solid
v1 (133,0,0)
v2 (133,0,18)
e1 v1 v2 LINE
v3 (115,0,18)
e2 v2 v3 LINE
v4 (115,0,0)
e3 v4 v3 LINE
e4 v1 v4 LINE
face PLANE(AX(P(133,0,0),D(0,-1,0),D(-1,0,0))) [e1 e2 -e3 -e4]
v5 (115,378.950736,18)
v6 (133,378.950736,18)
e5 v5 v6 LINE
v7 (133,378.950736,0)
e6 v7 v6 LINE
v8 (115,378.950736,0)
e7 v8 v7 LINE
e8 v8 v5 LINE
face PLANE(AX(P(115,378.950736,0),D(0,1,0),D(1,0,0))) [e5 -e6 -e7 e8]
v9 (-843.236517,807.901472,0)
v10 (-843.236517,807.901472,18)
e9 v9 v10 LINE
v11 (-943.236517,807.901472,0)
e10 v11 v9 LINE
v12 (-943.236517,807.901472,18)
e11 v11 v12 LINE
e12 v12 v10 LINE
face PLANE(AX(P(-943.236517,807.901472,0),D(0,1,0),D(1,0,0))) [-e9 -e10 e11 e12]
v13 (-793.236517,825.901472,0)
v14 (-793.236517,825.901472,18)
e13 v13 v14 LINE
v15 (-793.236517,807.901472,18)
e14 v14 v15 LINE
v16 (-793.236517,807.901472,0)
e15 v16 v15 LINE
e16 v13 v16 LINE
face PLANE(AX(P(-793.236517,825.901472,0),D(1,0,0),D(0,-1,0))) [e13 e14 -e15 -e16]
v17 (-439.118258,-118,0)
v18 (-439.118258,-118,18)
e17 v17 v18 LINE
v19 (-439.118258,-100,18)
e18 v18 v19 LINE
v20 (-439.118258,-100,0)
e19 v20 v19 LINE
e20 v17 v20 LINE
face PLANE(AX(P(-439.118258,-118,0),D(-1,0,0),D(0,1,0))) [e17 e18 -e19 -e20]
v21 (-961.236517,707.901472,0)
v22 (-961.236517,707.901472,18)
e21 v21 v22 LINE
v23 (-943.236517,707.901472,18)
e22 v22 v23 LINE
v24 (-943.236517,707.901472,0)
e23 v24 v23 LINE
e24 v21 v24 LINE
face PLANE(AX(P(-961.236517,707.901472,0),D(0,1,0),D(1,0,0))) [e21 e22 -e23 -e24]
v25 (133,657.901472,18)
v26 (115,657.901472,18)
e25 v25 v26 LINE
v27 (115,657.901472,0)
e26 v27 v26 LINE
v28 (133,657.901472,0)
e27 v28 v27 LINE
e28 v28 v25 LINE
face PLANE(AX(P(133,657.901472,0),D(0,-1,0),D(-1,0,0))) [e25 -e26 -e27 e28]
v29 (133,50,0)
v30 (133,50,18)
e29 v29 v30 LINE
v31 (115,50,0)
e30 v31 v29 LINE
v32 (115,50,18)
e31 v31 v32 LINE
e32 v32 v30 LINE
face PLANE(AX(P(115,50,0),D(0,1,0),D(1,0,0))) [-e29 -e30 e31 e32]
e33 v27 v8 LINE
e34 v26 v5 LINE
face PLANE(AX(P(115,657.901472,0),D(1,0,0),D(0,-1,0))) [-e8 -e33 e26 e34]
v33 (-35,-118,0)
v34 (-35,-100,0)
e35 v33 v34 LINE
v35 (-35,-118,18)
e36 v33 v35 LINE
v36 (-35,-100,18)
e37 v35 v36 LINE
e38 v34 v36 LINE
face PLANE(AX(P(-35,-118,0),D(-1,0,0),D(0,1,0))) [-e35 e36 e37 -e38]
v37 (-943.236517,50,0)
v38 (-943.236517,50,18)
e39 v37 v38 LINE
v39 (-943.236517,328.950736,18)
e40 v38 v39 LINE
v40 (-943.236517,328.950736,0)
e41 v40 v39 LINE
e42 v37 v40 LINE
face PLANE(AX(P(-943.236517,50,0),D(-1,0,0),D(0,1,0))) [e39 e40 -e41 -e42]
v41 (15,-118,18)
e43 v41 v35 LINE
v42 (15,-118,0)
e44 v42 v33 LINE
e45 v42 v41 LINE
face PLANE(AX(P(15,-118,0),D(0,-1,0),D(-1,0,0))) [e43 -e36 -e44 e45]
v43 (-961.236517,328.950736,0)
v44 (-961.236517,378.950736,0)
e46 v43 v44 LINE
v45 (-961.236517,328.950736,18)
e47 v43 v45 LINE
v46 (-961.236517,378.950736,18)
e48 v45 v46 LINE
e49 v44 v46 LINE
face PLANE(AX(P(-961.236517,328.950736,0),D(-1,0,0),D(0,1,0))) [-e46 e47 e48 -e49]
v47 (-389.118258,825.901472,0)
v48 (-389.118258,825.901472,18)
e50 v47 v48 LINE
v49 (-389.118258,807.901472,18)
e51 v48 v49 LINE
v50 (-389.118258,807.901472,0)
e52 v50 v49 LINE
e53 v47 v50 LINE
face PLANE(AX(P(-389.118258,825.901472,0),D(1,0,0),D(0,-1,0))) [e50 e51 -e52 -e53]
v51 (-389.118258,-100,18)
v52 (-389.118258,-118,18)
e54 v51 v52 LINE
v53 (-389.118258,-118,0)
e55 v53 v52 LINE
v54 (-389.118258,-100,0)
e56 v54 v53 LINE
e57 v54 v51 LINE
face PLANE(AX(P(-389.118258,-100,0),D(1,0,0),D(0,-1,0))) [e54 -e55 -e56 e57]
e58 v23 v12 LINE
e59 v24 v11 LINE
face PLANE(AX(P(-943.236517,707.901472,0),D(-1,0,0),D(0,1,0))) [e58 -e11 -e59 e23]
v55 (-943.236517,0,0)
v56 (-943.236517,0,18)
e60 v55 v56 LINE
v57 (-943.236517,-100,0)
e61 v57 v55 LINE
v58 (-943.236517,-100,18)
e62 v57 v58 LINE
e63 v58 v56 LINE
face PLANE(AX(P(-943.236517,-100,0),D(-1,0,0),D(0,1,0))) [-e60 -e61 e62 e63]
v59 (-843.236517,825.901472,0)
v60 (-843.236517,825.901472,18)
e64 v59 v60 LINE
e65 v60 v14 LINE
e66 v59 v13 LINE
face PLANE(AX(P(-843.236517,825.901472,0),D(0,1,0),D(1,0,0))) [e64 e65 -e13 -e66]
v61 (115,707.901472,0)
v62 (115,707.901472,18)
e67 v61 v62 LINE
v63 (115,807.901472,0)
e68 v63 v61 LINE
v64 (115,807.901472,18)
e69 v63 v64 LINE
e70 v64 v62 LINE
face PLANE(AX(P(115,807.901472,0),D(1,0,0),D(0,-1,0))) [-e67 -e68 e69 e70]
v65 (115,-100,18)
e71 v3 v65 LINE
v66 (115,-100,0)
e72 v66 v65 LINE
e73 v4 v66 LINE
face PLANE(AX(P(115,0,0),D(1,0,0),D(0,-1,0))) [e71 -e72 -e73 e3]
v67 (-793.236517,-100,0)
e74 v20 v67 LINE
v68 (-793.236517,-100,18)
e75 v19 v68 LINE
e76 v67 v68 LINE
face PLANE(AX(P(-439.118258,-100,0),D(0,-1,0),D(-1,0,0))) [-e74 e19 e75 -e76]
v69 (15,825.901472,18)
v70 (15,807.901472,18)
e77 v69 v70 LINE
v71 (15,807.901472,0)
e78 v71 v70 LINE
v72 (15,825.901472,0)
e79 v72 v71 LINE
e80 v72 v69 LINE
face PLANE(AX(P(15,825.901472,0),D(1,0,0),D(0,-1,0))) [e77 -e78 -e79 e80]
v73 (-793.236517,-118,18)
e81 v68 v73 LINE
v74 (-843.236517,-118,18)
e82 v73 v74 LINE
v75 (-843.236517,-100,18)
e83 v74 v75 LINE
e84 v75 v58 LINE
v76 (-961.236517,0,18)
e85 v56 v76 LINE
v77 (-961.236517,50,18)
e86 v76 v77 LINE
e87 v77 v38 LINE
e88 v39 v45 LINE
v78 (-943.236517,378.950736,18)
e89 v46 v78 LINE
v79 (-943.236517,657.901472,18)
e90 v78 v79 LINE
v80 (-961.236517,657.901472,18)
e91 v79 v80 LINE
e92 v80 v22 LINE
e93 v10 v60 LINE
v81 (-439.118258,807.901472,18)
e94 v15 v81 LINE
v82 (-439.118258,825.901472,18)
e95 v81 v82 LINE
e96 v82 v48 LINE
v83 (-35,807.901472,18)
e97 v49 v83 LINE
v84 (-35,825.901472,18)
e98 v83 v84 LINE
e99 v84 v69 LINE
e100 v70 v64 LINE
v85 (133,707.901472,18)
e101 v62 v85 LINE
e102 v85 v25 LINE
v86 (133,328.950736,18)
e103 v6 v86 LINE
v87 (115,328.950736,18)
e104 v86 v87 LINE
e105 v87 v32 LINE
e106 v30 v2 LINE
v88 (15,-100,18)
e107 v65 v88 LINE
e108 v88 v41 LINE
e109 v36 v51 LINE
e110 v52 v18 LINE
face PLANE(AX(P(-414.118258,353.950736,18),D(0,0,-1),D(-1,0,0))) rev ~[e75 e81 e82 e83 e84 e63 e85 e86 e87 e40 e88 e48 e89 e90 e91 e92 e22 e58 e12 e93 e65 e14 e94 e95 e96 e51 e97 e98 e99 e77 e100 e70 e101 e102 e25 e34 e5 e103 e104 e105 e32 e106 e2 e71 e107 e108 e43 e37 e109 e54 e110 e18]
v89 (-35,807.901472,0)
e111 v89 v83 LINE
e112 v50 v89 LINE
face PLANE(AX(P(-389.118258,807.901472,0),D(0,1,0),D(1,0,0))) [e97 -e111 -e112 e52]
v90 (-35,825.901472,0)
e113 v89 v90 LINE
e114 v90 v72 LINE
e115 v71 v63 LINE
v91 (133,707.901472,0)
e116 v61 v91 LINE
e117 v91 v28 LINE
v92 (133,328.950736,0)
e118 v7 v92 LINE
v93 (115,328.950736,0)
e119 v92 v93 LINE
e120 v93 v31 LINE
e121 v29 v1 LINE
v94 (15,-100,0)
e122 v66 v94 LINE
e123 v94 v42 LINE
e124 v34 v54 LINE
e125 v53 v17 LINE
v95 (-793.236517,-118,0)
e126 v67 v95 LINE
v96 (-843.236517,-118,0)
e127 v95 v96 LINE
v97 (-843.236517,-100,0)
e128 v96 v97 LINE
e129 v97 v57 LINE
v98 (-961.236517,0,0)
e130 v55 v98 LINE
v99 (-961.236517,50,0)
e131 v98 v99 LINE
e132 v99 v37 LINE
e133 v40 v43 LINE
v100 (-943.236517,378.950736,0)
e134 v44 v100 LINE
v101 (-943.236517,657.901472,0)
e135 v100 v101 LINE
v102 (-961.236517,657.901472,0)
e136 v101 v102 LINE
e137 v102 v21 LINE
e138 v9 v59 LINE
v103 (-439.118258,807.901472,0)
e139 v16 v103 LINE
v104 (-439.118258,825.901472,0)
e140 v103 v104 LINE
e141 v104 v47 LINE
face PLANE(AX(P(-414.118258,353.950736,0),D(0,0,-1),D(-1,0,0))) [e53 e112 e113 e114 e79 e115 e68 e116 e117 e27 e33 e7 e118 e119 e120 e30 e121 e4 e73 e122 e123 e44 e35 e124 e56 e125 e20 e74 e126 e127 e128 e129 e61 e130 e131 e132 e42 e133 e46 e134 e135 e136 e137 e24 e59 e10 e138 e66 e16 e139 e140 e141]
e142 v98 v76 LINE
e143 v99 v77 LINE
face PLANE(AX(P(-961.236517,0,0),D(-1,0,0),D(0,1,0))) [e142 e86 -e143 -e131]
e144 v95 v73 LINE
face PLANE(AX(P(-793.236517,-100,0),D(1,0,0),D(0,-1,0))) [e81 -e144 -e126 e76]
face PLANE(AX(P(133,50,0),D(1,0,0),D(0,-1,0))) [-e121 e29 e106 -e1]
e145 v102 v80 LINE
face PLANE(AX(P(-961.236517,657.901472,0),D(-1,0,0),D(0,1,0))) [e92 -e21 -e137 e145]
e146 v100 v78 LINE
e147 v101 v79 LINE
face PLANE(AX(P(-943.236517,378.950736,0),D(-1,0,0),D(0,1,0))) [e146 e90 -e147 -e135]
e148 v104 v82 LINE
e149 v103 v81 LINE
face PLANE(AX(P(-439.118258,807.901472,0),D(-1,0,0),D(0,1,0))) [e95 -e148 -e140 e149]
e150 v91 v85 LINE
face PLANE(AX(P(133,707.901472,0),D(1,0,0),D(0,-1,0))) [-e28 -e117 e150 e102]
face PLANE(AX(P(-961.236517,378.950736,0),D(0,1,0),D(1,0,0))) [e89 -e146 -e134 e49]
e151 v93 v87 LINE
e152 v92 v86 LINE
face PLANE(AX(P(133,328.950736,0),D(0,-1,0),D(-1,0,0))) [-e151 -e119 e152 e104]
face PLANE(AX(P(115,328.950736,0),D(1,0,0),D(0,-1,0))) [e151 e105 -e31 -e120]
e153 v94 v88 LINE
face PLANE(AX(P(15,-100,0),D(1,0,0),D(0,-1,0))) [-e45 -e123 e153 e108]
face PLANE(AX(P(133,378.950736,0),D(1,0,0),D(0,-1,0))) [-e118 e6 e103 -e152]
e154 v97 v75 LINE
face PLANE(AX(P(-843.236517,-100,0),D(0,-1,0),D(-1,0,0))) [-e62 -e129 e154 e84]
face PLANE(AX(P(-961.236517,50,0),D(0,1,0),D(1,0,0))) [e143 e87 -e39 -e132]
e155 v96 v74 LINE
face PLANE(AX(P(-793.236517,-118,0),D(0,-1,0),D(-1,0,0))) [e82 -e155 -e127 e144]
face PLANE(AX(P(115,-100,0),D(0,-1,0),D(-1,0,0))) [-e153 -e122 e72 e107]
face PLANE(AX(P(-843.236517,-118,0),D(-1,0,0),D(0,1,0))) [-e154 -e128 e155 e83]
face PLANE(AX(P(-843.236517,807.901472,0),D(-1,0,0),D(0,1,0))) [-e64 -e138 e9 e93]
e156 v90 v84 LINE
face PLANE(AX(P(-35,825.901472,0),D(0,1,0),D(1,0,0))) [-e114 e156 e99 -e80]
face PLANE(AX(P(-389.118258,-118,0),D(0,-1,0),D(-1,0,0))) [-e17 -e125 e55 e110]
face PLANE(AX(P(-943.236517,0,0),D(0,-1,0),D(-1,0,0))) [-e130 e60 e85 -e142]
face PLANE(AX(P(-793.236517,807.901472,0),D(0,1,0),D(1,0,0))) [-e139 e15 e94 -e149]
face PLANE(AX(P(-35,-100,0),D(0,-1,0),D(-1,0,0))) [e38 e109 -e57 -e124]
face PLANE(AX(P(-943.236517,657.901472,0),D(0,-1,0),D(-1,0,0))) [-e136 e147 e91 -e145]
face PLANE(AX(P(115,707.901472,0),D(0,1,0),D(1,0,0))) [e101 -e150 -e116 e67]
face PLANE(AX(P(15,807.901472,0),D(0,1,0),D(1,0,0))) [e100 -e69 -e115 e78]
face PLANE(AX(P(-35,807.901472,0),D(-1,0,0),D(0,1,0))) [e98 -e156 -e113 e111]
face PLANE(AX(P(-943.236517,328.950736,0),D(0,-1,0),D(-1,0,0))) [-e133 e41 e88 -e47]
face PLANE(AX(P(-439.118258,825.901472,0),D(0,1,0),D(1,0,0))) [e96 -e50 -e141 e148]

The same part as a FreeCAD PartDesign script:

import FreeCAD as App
import Part
import Sketcher
from FreeCAD import Vector
Q = App.Units.Quantity

doc = App.newDocument("Part")
body = doc.addObject("PartDesign::Body", "Body")

sketch1 = body.newObject("Sketcher::SketchObject", "Sketch")
sketch1.AttachmentSupport = (doc.getObject("XY_Plane"), [""])
sketch1.MapMode = "FlatFace"
sketch1.addGeometry([
    Part.LineSegment(Vector(-961.236517, 378.950736, 0), Vector(-961.236517, 328.950736, 0)),
    Part.LineSegment(Vector(-961.236517, 328.950736, 0), Vector(-943.236517, 328.950736, 0)),
    Part.LineSegment(Vector(-943.236517, 328.950736, 0), Vector(-943.236517, 50, 0)),
    Part.LineSegment(Vector(-943.236517, 50, 0), Vector(-961.236517, 50, 0)),
    Part.LineSegment(Vector(-961.236517, 50, 0), Vector(-961.236517, 0, 0)),
    Part.LineSegment(Vector(-961.236517, 0, 0), Vector(-943.236517, 0, 0)),
    Part.LineSegment(Vector(-943.236517, 0, 0), Vector(-943.236517, -100, 0)),
    Part.LineSegment(Vector(-943.236517, -100, 0), Vector(-843.236517, -100, 0)),
    Part.LineSegment(Vector(-843.236517, -100, 0), Vector(-843.236517, -118, 0)),
    Part.LineSegment(Vector(-843.236517, -118, 0), Vector(-793.236517, -118, 0)),
    Part.LineSegment(Vector(-793.236517, -118, 0), Vector(-793.236517, -100, 0)),
    Part.LineSegment(Vector(-793.236517, -100, 0), Vector(-439.118258, -100, 0)),
    Part.LineSegment(Vector(-439.118258, -100, 0), Vector(-439.118258, -118, 0)),
    Part.LineSegment(Vector(-439.118258, -118, 0), Vector(-389.118258, -118, 0)),
    Part.LineSegment(Vector(-389.118258, -118, 0), Vector(-389.118258, -100, 0)),
    Part.LineSegment(Vector(-389.118258, -100, 0), Vector(-35, -100, 0)),
    Part.LineSegment(Vector(-35, -100, 0), Vector(-35, -118, 0)),
    Part.LineSegment(Vector(-35, -118, 0), Vector(15, -118, 0)),
    Part.LineSegment(Vector(15, -118, 0), Vector(15, -100, 0)),
    Part.LineSegment(Vector(15, -100, 0), Vector(115, -100, 0)),
    Part.LineSegment(Vector(115, -100, 0), Vector(115, 0, 0)),
    Part.LineSegment(Vector(115, 0, 0), Vector(133, 0, 0)),
    Part.LineSegment(Vector(133, 0, 0), Vector(133, 50, 0)),
    Part.LineSegment(Vector(133, 50, 0), Vector(115, 50, 0)),
    Part.LineSegment(Vector(115, 50, 0), Vector(115, 328.950736, 0)),
    Part.LineSegment(Vector(115, 328.950736, 0), Vector(133, 328.950736, 0)),
    Part.LineSegment(Vector(133, 328.950736, 0), Vector(133, 378.950736, 0)),
    Part.LineSegment(Vector(133, 378.950736, 0), Vector(115, 378.950736, 0)),
    Part.LineSegment(Vector(115, 378.950736, 0), Vector(115, 657.901472, 0)),
    Part.LineSegment(Vector(115, 657.901472, 0), Vector(133, 657.901472, 0)),
    Part.LineSegment(Vector(133, 657.901472, 0), Vector(133, 707.901472, 0)),
    Part.LineSegment(Vector(133, 707.901472, 0), Vector(115, 707.901472, 0)),
    Part.LineSegment(Vector(115, 707.901472, 0), Vector(115, 807.901472, 0)),
    Part.LineSegment(Vector(115, 807.901472, 0), Vector(15, 807.901472, 0)),
    Part.LineSegment(Vector(15, 807.901472, 0), Vector(15, 825.901472, 0)),
    Part.LineSegment(Vector(15, 825.901472, 0), Vector(-35, 825.901472, 0)),
    Part.LineSegment(Vector(-35, 825.901472, 0), Vector(-35, 807.901472, 0)),
    Part.LineSegment(Vector(-35, 807.901472, 0), Vector(-389.118258, 807.901472, 0)),
    Part.LineSegment(Vector(-389.118258, 807.901472, 0), Vector(-389.118258, 825.901472, 0)),
    Part.LineSegment(Vector(-389.118258, 825.901472, 0), Vector(-439.118258, 825.901472, 0)),
    Part.LineSegment(Vector(-439.118258, 825.901472, 0), Vector(-439.118258, 807.901472, 0)),
    Part.LineSegment(Vector(-439.118258, 807.901472, 0), Vector(-793.236517, 807.901472, 0)),
    Part.LineSegment(Vector(-793.236517, 807.901472, 0), Vector(-793.236517, 825.901472, 0)),
    Part.LineSegment(Vector(-793.236517, 825.901472, 0), Vector(-843.236517, 825.901472, 0)),
    Part.LineSegment(Vector(-843.236517, 825.901472, 0), Vector(-843.236517, 807.901472, 0)),
    Part.LineSegment(Vector(-843.236517, 807.901472, 0), Vector(-943.236517, 807.901472, 0)),
    Part.LineSegment(Vector(-943.236517, 807.901472, 0), Vector(-943.236517, 707.901472, 0)),
    Part.LineSegment(Vector(-943.236517, 707.901472, 0), Vector(-961.236517, 707.901472, 0)),
    Part.LineSegment(Vector(-961.236517, 707.901472, 0), Vector(-961.236517, 657.901472, 0)),
    Part.LineSegment(Vector(-961.236517, 657.901472, 0), Vector(-943.236517, 657.901472, 0)),
    Part.LineSegment(Vector(-943.236517, 657.901472, 0), Vector(-943.236517, 378.950736, 0)),
    Part.LineSegment(Vector(-943.236517, 378.950736, 0), Vector(-961.236517, 378.950736, 0)),
], False)
sketch1.addConstraint([
    Sketcher.Constraint("Coincident", 0, 2, 1, 1),
    Sketcher.Constraint("Coincident", 1, 2, 2, 1),
    Sketcher.Constraint("Coincident", 2, 2, 3, 1),
    Sketcher.Constraint("Coincident", 3, 2, 4, 1),
    Sketcher.Constraint("Coincident", 4, 2, 5, 1),
    Sketcher.Constraint("Coincident", 5, 2, 6, 1),
    Sketcher.Constraint("Coincident", 6, 2, 7, 1),
    Sketcher.Constraint("Coincident", 7, 2, 8, 1),
    Sketcher.Constraint("Coincident", 8, 2, 9, 1),
    Sketcher.Constraint("Coincident", 9, 2, 10, 1),
    Sketcher.Constraint("Coincident", 10, 2, 11, 1),
    Sketcher.Constraint("Coincident", 11, 2, 12, 1),
    Sketcher.Constraint("Coincident", 12, 2, 13, 1),
    Sketcher.Constraint("Coincident", 13, 2, 14, 1),
    Sketcher.Constraint("Coincident", 14, 2, 15, 1),
    Sketcher.Constraint("Coincident", 15, 2, 16, 1),
    Sketcher.Constraint("Coincident", 16, 2, 17, 1),
    Sketcher.Constraint("Coincident", 17, 2, 18, 1),
    Sketcher.Constraint("Coincident", 18, 2, 19, 1),
    Sketcher.Constraint("Coincident", 19, 2, 20, 1),
    Sketcher.Constraint("Coincident", 20, 2, 21, 1),
    Sketcher.Constraint("Coincident", 21, 2, 22, 1),
    Sketcher.Constraint("Coincident", 22, 2, 23, 1),
    Sketcher.Constraint("Coincident", 23, 2, 24, 1),
    Sketcher.Constraint("Coincident", 24, 2, 25, 1),
    Sketcher.Constraint("Coincident", 25, 2, 26, 1),
    Sketcher.Constraint("Coincident", 26, 2, 27, 1),
    Sketcher.Constraint("Coincident", 27, 2, 28, 1),
    Sketcher.Constraint("Coincident", 28, 2, 29, 1),
    Sketcher.Constraint("Coincident", 29, 2, 30, 1),
    Sketcher.Constraint("Coincident", 30, 2, 31, 1),
    Sketcher.Constraint("Coincident", 31, 2, 32, 1),
    Sketcher.Constraint("Coincident", 32, 2, 33, 1),
    Sketcher.Constraint("Coincident", 33, 2, 34, 1),
    Sketcher.Constraint("Coincident", 34, 2, 35, 1),
    Sketcher.Constraint("Coincident", 35, 2, 36, 1),
    Sketcher.Constraint("Coincident", 36, 2, 37, 1),
    Sketcher.Constraint("Coincident", 37, 2, 38, 1),
    Sketcher.Constraint("Coincident", 38, 2, 39, 1),
    Sketcher.Constraint("Coincident", 39, 2, 40, 1),
    Sketcher.Constraint("Coincident", 40, 2, 41, 1),
    Sketcher.Constraint("Coincident", 41, 2, 42, 1),
    Sketcher.Constraint("Coincident", 42, 2, 43, 1),
    Sketcher.Constraint("Coincident", 43, 2, 44, 1),
    Sketcher.Constraint("Coincident", 44, 2, 45, 1),
    Sketcher.Constraint("Coincident", 45, 2, 46, 1),
    Sketcher.Constraint("Coincident", 46, 2, 47, 1),
    Sketcher.Constraint("Coincident", 47, 2, 48, 1),
    Sketcher.Constraint("Coincident", 48, 2, 49, 1),
    Sketcher.Constraint("Coincident", 49, 2, 50, 1),
    Sketcher.Constraint("Coincident", 50, 2, 51, 1),
    Sketcher.Constraint("Coincident", 51, 2, 0, 1),
    Sketcher.Constraint("Vertical", 0),
    Sketcher.Constraint("Horizontal", 1),
    Sketcher.Constraint("Vertical", 2),
    Sketcher.Constraint("Horizontal", 3),
    Sketcher.Constraint("Vertical", 4),
    Sketcher.Constraint("Horizontal", 5),
    Sketcher.Constraint("Vertical", 6),
    Sketcher.Constraint("Horizontal", 7),
    Sketcher.Constraint("Vertical", 8),
    Sketcher.Constraint("Horizontal", 9),
    Sketcher.Constraint("Vertical", 10),
    Sketcher.Constraint("Horizontal", 11),
    Sketcher.Constraint("Vertical", 12),
    Sketcher.Constraint("Horizontal", 13),
    Sketcher.Constraint("Vertical", 14),
    Sketcher.Constraint("Horizontal", 15),
    Sketcher.Constraint("Vertical", 16),
    Sketcher.Constraint("Horizontal", 17),
    Sketcher.Constraint("Vertical", 18),
    Sketcher.Constraint("Horizontal", 19),
    Sketcher.Constraint("Vertical", 20),
    Sketcher.Constraint("Horizontal", 21),
    Sketcher.Constraint("Vertical", 22),
    Sketcher.Constraint("Horizontal", 23),
    Sketcher.Constraint("Vertical", 24),
    Sketcher.Constraint("Horizontal", 25),
    Sketcher.Constraint("Vertical", 26),
    Sketcher.Constraint("Horizontal", 27),
    Sketcher.Constraint("Vertical", 28),
    Sketcher.Constraint("Horizontal", 29),
    Sketcher.Constraint("Vertical", 30),
    Sketcher.Constraint("Horizontal", 31),
    Sketcher.Constraint("Vertical", 32),
    Sketcher.Constraint("Horizontal", 33),
    Sketcher.Constraint("Vertical", 34),
    Sketcher.Constraint("Horizontal", 35),
    Sketcher.Constraint("Vertical", 36),
    Sketcher.Constraint("Horizontal", 37),
    Sketcher.Constraint("Vertical", 38),
    Sketcher.Constraint("Horizontal", 39),
    Sketcher.Constraint("Vertical", 40),
    Sketcher.Constraint("Horizontal", 41),
    Sketcher.Constraint("Vertical", 42),
    Sketcher.Constraint("Horizontal", 43),
    Sketcher.Constraint("Vertical", 44),
    Sketcher.Constraint("Horizontal", 45),
    Sketcher.Constraint("Vertical", 46),
    Sketcher.Constraint("Horizontal", 47),
    Sketcher.Constraint("Vertical", 48),
    Sketcher.Constraint("Horizontal", 49),
    Sketcher.Constraint("Vertical", 50),
    Sketcher.Constraint("Horizontal", 51),
    Sketcher.Constraint("PointOnObject", 4, 2, -1),
    Sketcher.Constraint("PointOnObject", 20, 2, -1),
    Sketcher.Constraint("Horizontal", 7, 2, 10, 2),
    Sketcher.Constraint("Horizontal", 9, 2, 12, 2),
    Sketcher.Constraint("Horizontal", 11, 2, 14, 2),
    Sketcher.Constraint("Horizontal", 13, 2, 16, 2),
    Sketcher.Constraint("Horizontal", 15, 2, 18, 2),
    Sketcher.Constraint("Horizontal", 3, 2, 22, 2),
    Sketcher.Constraint("Horizontal", 1, 2, 24, 2),
    Sketcher.Constraint("Horizontal", 33, 2, 36, 2),
    Sketcher.Constraint("Horizontal", 35, 2, 38, 2),
    Sketcher.Constraint("Horizontal", 37, 2, 40, 2),
    Sketcher.Constraint("Horizontal", 39, 2, 42, 2),
    Sketcher.Constraint("Horizontal", 41, 2, 44, 2),
    Sketcher.Constraint("Horizontal", 31, 2, 46, 2),
    Sketcher.Constraint("Horizontal", 29, 2, 48, 2),
    Sketcher.Constraint("Horizontal", 27, 2, 50, 2),
    Sketcher.Constraint("Vertical", 0, 2, 3, 2),
    Sketcher.Constraint("Vertical", 2, 2, 5, 2),
    Sketcher.Constraint("Vertical", 20, 2, 23, 2),
    Sketcher.Constraint("Vertical", 22, 2, 25, 2),
    Sketcher.Constraint("Vertical", 24, 2, 27, 2),
    Sketcher.Constraint("Vertical", 26, 2, 29, 2),
    Sketcher.Constraint("Vertical", 28, 2, 31, 2),
    Sketcher.Constraint("Vertical", 18, 2, 33, 2),
    Sketcher.Constraint("Vertical", 16, 2, 35, 2),
    Sketcher.Constraint("Vertical", 14, 2, 37, 2),
    Sketcher.Constraint("Vertical", 12, 2, 39, 2),
    Sketcher.Constraint("Vertical", 10, 2, 41, 2),
    Sketcher.Constraint("Vertical", 8, 2, 43, 2),
    Sketcher.Constraint("Vertical", 6, 2, 45, 2),
    Sketcher.Constraint("Vertical", 4, 2, 47, 2),
    Sketcher.Constraint("Vertical", 46, 2, 49, 2),
    Sketcher.Constraint("Equal", 9, 13),
    Sketcher.Constraint("Equal", 11, 15),
    Sketcher.Constraint("Equal", 13, 17),
    Sketcher.Constraint("Equal", 7, 19),
    Sketcher.Constraint("Equal", 5, 21),
    Sketcher.Constraint("Equal", 43, 0),
    Sketcher.Constraint("Equal", 0, 4),
    Sketcher.Constraint("Equal", 45, 6),
    Sketcher.Constraint("Equal", 51, 8),
    Sketcher.Constraint("Equal", 24, 28),
    Sketcher.Constraint("Equal", 26, 30),
    Sketcher.Constraint("Equal", 20, 32),
    Sketcher.Constraint("Equal", 18, 34),
    Sketcher.Constraint("DistanceX", 1, 1, 1, 2, Q("18 mm")),
    Sketcher.Constraint("DistanceX", 7, 1, 7, 2, Q("100 mm")),
    Sketcher.Constraint("DistanceX", 9, 1, 9, 2, Q("50 mm")),
    Sketcher.Constraint("DistanceX", 15, 2, -1, 1, Q("35 mm")),
    Sketcher.Constraint("DistanceX", 11, 1, 11, 2, Q("354.118258 mm")),
    Sketcher.Constraint("DistanceY", 2, 2, 2, 1, Q("278.950736 mm")),
])
pad1 = body.newObject("PartDesign::Pad", "Pad")
pad1.Profile = sketch1
pad1.Length = 18

doc.recompute()
